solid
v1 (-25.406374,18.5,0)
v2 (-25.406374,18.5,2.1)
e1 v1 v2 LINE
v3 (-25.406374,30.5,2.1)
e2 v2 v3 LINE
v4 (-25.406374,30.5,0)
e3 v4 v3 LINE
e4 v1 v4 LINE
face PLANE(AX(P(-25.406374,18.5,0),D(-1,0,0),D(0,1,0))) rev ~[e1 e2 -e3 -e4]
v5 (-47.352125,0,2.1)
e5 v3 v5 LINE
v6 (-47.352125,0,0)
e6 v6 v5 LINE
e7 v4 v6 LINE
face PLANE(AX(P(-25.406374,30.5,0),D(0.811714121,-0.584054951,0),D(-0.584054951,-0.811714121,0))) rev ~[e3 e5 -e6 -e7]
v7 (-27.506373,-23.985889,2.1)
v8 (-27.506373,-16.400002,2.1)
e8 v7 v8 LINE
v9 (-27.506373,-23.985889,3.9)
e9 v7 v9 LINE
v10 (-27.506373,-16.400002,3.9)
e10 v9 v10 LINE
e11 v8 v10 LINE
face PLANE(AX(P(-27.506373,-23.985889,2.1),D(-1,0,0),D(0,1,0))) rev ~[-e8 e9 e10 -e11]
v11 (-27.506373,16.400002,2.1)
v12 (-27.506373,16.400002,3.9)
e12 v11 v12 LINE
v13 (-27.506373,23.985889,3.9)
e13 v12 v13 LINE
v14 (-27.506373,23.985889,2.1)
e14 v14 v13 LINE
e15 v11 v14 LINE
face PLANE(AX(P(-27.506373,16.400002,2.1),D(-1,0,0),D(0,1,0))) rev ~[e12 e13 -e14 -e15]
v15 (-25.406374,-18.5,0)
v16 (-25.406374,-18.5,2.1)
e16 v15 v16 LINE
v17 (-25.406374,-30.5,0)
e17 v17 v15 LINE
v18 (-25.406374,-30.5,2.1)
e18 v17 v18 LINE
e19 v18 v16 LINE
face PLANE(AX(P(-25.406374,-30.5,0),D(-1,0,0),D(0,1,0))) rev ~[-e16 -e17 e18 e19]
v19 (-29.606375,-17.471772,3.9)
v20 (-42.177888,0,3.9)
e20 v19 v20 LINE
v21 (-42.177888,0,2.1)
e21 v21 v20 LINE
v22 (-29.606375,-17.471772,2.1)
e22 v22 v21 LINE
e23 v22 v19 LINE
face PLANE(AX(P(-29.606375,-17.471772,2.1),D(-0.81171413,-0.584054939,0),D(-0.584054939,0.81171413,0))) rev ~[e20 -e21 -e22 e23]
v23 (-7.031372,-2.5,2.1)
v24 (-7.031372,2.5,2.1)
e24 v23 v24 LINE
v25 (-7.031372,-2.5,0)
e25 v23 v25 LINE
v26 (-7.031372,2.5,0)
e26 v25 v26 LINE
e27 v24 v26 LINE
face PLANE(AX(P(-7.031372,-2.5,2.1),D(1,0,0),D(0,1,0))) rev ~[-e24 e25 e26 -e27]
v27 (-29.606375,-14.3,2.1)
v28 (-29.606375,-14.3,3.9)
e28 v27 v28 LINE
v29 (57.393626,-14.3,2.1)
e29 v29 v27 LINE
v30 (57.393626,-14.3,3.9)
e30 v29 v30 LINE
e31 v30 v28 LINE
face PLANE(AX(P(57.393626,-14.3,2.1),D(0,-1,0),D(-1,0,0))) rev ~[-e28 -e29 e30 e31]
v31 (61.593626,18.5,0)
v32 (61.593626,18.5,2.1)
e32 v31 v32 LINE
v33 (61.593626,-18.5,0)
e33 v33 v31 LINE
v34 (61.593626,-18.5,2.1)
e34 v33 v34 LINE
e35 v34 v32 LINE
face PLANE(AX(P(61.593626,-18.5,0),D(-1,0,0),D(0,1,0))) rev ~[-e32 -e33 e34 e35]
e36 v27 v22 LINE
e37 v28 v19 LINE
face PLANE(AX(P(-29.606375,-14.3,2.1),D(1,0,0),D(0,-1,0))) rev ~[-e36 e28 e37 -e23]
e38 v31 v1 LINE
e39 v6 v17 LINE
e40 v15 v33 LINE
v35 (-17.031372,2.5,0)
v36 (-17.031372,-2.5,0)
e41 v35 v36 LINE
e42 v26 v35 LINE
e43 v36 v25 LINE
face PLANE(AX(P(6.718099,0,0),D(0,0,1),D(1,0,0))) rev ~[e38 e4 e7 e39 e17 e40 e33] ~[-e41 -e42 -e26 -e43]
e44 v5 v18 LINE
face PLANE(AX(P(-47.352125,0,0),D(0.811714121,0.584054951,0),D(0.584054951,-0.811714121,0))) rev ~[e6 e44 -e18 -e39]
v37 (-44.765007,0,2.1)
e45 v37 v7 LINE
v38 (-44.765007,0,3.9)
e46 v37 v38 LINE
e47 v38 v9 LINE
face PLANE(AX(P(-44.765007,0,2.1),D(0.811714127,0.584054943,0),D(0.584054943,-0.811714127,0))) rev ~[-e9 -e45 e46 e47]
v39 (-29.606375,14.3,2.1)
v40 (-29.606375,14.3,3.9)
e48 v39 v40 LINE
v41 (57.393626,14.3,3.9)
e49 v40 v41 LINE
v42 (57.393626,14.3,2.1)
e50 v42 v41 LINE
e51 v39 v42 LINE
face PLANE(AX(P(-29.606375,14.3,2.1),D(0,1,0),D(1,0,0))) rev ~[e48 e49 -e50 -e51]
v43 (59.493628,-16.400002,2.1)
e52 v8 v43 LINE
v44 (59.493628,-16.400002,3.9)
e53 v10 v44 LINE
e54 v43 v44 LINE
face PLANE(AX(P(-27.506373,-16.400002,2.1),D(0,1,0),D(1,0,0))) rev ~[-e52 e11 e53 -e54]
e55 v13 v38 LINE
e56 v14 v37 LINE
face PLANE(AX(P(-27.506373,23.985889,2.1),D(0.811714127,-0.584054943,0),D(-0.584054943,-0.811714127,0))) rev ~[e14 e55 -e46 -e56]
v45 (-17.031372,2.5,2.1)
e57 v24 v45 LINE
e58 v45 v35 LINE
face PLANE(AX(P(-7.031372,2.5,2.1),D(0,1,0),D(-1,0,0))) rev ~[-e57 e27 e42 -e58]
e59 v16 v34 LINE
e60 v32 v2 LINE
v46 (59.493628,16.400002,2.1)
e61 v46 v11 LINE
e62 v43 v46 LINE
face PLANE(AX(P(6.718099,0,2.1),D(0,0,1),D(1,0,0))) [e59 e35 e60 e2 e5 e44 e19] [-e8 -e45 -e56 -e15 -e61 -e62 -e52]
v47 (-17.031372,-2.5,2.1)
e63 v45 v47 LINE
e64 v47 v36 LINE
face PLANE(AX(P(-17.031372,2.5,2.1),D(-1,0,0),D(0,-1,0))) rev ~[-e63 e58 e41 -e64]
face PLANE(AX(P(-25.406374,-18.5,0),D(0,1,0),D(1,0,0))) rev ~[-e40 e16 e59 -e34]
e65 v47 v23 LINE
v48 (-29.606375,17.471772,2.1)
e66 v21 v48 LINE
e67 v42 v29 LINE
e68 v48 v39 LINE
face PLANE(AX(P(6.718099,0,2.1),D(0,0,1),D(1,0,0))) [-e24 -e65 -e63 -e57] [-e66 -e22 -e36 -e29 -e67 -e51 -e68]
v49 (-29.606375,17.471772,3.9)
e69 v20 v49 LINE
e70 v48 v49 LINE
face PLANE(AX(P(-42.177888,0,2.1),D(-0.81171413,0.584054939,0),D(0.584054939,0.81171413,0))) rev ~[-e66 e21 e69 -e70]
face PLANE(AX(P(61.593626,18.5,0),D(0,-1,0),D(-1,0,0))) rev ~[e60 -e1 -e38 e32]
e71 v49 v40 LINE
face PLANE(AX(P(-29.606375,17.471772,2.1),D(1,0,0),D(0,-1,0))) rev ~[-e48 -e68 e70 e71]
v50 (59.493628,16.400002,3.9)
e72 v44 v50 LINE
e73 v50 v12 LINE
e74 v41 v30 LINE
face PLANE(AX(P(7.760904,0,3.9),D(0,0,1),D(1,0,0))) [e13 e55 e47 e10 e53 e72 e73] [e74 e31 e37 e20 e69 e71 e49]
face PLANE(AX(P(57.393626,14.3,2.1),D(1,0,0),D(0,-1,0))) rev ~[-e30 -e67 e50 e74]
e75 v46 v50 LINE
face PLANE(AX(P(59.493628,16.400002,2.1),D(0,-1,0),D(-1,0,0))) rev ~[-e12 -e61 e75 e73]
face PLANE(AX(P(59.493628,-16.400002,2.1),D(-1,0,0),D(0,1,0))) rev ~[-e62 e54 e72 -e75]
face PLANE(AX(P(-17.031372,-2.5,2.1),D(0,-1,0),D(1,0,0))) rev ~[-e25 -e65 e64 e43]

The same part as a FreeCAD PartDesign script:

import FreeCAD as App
import Part
import Sketcher
from FreeCAD import Vector
Q = App.Units.Quantity

doc = App.newDocument("Part")
params = doc.addObject("Spreadsheet::Sheet", "Params")
for row, (alias, value) in enumerate([
    ("sketch1_width", "87 mm"),
    ("sketch1_height", "37 mm"),
    ("sketch1_height2", "12 mm"),
    ("pad1_length", "2.1 mm"),
    ("sketch2_width", "87.000001 mm"),
    ("sketch2_height", "28.6 mm"),
    ("pad2_length", "1.8 mm"),
    ("sketch3_width", "10 mm"),
    ("sketch3_height", "5 mm"),
    ("pocket1_length", "8 mm"),
], start=1):
    params.set(f"A{row}", alias)
    params.set(f"B{row}", "=" + value)
    params.setAlias(f"B{row}", alias)

body = doc.addObject("PartDesign::Body", "Body")

# Sketch on XY plane
sketch1 = body.newObject("Sketcher::SketchObject", "Sketch")
sketch1.AttachmentSupport = (doc.getObject("XY_Plane"), [""])
sketch1.MapMode = "FlatFace"
sketch1.addGeometry([
    Part.LineSegment(Vector(62, -18, 0), Vector(62, 18, 0)),  # 0
    Part.LineSegment(Vector(62, 18, 0), Vector(-25, 18, 0)),  # 1
    Part.LineSegment(Vector(-25, 18, 0), Vector(-25, 30, 0)),  # 2
    Part.LineSegment(Vector(-25, 30, 0), Vector(-47, 0, 0)),  # 3
    Part.LineSegment(Vector(-47, 0, 0), Vector(-25, -30, 0)),  # 4
    Part.LineSegment(Vector(-25, -30, 0), Vector(-25, -18, 0)),  # 5
    Part.LineSegment(Vector(-25, -18, 0), Vector(62, -18, 0)),  # 6
], False)
sketch1.addConstraint([
    Sketcher.Constraint("Coincident", 0, 2, 1, 1),
    Sketcher.Constraint("Coincident", 1, 2, 2, 1),
    Sketcher.Constraint("Coincident", 2, 2, 3, 1),
    Sketcher.Constraint("Coincident", 3, 2, 4, 1),
    Sketcher.Constraint("Coincident", 4, 2, 5, 1),
    Sketcher.Constraint("Coincident", 5, 2, 6, 1),
    Sketcher.Constraint("Coincident", 6, 2, 0, 1),
    Sketcher.Constraint("Vertical", 0),
    Sketcher.Constraint("Horizontal", 1),
    Sketcher.Constraint("Vertical", 2),
    Sketcher.Constraint("Vertical", 5),
    Sketcher.Constraint("Horizontal", 6),
    Sketcher.Constraint("Symmetric", 2, 2, 4, 2, -1),
    Sketcher.Constraint("PointOnObject", 3, 2, -1),
    Sketcher.Constraint("Equal", 2, 5),
    Sketcher.Constraint("DistanceX", 1, 2, 1, 1, Q("87 mm")),
    Sketcher.Constraint("DistanceY", 0, 1, 0, 2, Q("37 mm")),
    Sketcher.Constraint("DistanceY", 2, 1, 2, 2, Q("12 mm")),
    Sketcher.Constraint("DistanceX", 3, 2, 1, 2, Q("21.945751 mm")),
    Sketcher.Constraint("DistanceX", -1, 1, 0, 2, Q("61.593626 mm")),
])
sketch1.setExpression("Constraints[15]", "Params.sketch1_width")
sketch1.setExpression("Constraints[16]", "Params.sketch1_height")
sketch1.setExpression("Constraints[17]", "Params.sketch1_height2")
pad1 = body.newObject("PartDesign::Pad", "Pad")
pad1.Profile = sketch1
pad1.setExpression("Length", "Params.pad1_length")

# Sketch on XY plane
sketch2 = body.newObject("Sketcher::SketchObject", "Sketch001")
sketch2.AttachmentSupport = (doc.getObject("XY_Plane"), [""])
sketch2.MapMode = "FlatFace"
sketch2.AttachmentOffset = App.Placement(Vector(0, 0, 2.1), App.Rotation())
sketch2.addGeometry([
    Part.LineSegment(Vector(59.5, 16.4, 0), Vector(-27.5, 16.4, 0)),  # 0
    Part.LineSegment(Vector(-27.5, 16.4, 0), Vector(-27.5, 24, 0)),  # 1
    Part.LineSegment(Vector(-27.5, 24, 0), Vector(-44.8, 0, 0)),  # 2
    Part.LineSegment(Vector(-44.8, 0, 0), Vector(-27.5, -24, 0)),  # 3
    Part.LineSegment(Vector(-27.5, -24, 0), Vector(-27.5, -16.4, 0)),  # 4
    Part.LineSegment(Vector(-27.5, -16.4, 0), Vector(59.5, -16.4, 0)),  # 5
    Part.LineSegment(Vector(59.5, -16.4, 0), Vector(59.5, 16.4, 0)),  # 6
    Part.LineSegment(Vector(-42.2, 0, 0), Vector(-29.6, 17.5, 0)),  # 7
    Part.LineSegment(Vector(-29.6, 17.5, 0), Vector(-29.6, 14.3, 0)),  # 8
    Part.LineSegment(Vector(-29.6, 14.3, 0), Vector(57.4, 14.3, 0)),  # 9
    Part.LineSegment(Vector(57.4, 14.3, 0), Vector(57.4, -14.3, 0)),  # 10
    Part.LineSegment(Vector(57.4, -14.3, 0), Vector(-29.6, -14.3, 0)),  # 11
    Part.LineSegment(Vector(-29.6, -14.3, 0), Vector(-29.6, -17.5, 0)),  # 12
    Part.LineSegment(Vector(-29.6, -17.5, 0), Vector(-42.2, 0, 0)),  # 13
], False)
sketch2.addConstraint([
    Sketcher.Constraint("Coincident", 0, 2, 1, 1),
    Sketcher.Constraint("Coincident", 1, 2, 2, 1),
    Sketcher.Constraint("Coincident", 2, 2, 3, 1),
    Sketcher.Constraint("Coincident", 3, 2, 4, 1),
    Sketcher.Constraint("Coincident", 4, 2, 5, 1),
    Sketcher.Constraint("Coincident", 5, 2, 6, 1),
    Sketcher.Constraint("Coincident", 6, 2, 0, 1),
    Sketcher.Constraint("Coincident", 7, 2, 8, 1),
    Sketcher.Constraint("Coincident", 8, 2, 9, 1),
    Sketcher.Constraint("Coincident", 9, 2, 10, 1),
    Sketcher.Constraint("Coincident", 10, 2, 11, 1),
    Sketcher.Constraint("Coincident", 11, 2, 12, 1),
    Sketcher.Constraint("Coincident", 12, 2, 13, 1),
    Sketcher.Constraint("Coincident", 13, 2, 7, 1),
    Sketcher.Constraint("Horizontal", 0),
    Sketcher.Constraint("Vertical", 1),
    Sketcher.Constraint("Vertical", 4),
    Sketcher.Constraint("Horizontal", 5),
    Sketcher.Constraint("Vertical", 6),
    Sketcher.Constraint("Vertical", 8),
    Sketcher.Constraint("Horizontal", 9),
    Sketcher.Constraint("Vertical", 10),
    Sketcher.Constraint("Horizontal", 11),
    Sketcher.Constraint("Vertical", 12),
    Sketcher.Constraint("Symmetric", 1, 2, 3, 2, -1),
    Sketcher.Constraint("Symmetric", 8, 2, 11, 2, -1),
    Sketcher.Constraint("PointOnObject", 2, 2, -1),
    Sketcher.Constraint("PointOnObject", 13, 2, -1),
    Sketcher.Constraint("Parallel", 2, 7),
    Sketcher.Constraint("Parallel", 3, 13),
    Sketcher.Constraint("Equal", 5, 9),
    Sketcher.Constraint("Equal", 1, 4),
    Sketcher.Constraint("DistanceX", 0, 2, 0, 1, Q("87.000001 mm")),
    Sketcher.Constraint("DistanceY", 10, 2, 10, 1, Q("28.6 mm")),
    Sketcher.Constraint("DistanceX", 7, 2, 0, 2, Q("2.100002 mm")),
    Sketcher.Constraint("DistanceY", 8, 2, 0, 2, Q("2.100002 mm")),
    Sketcher.Constraint("Distance", 7, Q("21.524538 mm")),
    Sketcher.Constraint("DistanceY", 1, 1, 1, 2, Q("7.585887 mm")),
    Sketcher.Constraint("DistanceY", 8, 2, 8, 1, Q("3.171772 mm")),
    Sketcher.Constraint("DistanceX", 13, 2, -1, 1, Q("42.177888 mm")),
])
sketch2.setExpression("Constraints[32]", "Params.sketch2_width")
sketch2.setExpression("Constraints[33]", "Params.sketch2_height")
pad2 = body.newObject("PartDesign::Pad", "Pad001")
pad2.Profile = sketch2
pad2.setExpression("Length", "Params.pad2_length")

# Sketch on XY plane
sketch3 = body.newObject("Sketcher::SketchObject", "Sketch002")
sketch3.AttachmentSupport = (doc.getObject("XY_Plane"), [""])
sketch3.MapMode = "FlatFace"
sketch3.AttachmentOffset = App.Placement(Vector(0, 0, 2.1), App.Rotation())
sketch3.addGeometry([
    Part.LineSegment(Vector(-7, -2, 0), Vector(-7, 2, 0)),
    Part.LineSegment(Vector(-7, 2, 0), Vector(-17, 2, 0)),
    Part.LineSegment(Vector(-17, 2, 0), Vector(-17, -2, 0)),
    Part.LineSegment(Vector(-17, -2, 0), Vector(-7, -2, 0)),
], False)
sketch3.addConstraint([
    Sketcher.Constraint("Coincident", 0, 2, 1, 1),
    Sketcher.Constraint("Coincident", 1, 2, 2, 1),
    Sketcher.Constraint("Coincident", 2, 2, 3, 1),
    Sketcher.Constraint("Coincident", 3, 2, 0, 1),
    Sketcher.Constraint("Vertical", 0),
    Sketcher.Constraint("Horizontal", 1),
    Sketcher.Constraint("Vertical", 2),
    Sketcher.Constraint("Horizontal", 3),
    Sketcher.Constraint("DistanceX", 1, 2, 1, 1, Q("10 mm")),
    Sketcher.Constraint("DistanceY", 0, 1, 0, 2, Q("5 mm")),
    Sketcher.Constraint("DistanceY", -1, 1, 0, 2, Q("2.5 mm")),
    Sketcher.Constraint("DistanceX", 0, 2, -1, 1, Q("7.031372 mm")),
])
sketch3.setExpression("Constraints[8]", "Params.sketch3_width")
sketch3.setExpression("Constraints[9]", "Params.sketch3_height")
pocket1 = body.newObject("PartDesign::Pocket", "Pocket")
pocket1.Profile = sketch3
pocket1.setExpression("Length", "Params.pocket1_length")

doc.recompute()
